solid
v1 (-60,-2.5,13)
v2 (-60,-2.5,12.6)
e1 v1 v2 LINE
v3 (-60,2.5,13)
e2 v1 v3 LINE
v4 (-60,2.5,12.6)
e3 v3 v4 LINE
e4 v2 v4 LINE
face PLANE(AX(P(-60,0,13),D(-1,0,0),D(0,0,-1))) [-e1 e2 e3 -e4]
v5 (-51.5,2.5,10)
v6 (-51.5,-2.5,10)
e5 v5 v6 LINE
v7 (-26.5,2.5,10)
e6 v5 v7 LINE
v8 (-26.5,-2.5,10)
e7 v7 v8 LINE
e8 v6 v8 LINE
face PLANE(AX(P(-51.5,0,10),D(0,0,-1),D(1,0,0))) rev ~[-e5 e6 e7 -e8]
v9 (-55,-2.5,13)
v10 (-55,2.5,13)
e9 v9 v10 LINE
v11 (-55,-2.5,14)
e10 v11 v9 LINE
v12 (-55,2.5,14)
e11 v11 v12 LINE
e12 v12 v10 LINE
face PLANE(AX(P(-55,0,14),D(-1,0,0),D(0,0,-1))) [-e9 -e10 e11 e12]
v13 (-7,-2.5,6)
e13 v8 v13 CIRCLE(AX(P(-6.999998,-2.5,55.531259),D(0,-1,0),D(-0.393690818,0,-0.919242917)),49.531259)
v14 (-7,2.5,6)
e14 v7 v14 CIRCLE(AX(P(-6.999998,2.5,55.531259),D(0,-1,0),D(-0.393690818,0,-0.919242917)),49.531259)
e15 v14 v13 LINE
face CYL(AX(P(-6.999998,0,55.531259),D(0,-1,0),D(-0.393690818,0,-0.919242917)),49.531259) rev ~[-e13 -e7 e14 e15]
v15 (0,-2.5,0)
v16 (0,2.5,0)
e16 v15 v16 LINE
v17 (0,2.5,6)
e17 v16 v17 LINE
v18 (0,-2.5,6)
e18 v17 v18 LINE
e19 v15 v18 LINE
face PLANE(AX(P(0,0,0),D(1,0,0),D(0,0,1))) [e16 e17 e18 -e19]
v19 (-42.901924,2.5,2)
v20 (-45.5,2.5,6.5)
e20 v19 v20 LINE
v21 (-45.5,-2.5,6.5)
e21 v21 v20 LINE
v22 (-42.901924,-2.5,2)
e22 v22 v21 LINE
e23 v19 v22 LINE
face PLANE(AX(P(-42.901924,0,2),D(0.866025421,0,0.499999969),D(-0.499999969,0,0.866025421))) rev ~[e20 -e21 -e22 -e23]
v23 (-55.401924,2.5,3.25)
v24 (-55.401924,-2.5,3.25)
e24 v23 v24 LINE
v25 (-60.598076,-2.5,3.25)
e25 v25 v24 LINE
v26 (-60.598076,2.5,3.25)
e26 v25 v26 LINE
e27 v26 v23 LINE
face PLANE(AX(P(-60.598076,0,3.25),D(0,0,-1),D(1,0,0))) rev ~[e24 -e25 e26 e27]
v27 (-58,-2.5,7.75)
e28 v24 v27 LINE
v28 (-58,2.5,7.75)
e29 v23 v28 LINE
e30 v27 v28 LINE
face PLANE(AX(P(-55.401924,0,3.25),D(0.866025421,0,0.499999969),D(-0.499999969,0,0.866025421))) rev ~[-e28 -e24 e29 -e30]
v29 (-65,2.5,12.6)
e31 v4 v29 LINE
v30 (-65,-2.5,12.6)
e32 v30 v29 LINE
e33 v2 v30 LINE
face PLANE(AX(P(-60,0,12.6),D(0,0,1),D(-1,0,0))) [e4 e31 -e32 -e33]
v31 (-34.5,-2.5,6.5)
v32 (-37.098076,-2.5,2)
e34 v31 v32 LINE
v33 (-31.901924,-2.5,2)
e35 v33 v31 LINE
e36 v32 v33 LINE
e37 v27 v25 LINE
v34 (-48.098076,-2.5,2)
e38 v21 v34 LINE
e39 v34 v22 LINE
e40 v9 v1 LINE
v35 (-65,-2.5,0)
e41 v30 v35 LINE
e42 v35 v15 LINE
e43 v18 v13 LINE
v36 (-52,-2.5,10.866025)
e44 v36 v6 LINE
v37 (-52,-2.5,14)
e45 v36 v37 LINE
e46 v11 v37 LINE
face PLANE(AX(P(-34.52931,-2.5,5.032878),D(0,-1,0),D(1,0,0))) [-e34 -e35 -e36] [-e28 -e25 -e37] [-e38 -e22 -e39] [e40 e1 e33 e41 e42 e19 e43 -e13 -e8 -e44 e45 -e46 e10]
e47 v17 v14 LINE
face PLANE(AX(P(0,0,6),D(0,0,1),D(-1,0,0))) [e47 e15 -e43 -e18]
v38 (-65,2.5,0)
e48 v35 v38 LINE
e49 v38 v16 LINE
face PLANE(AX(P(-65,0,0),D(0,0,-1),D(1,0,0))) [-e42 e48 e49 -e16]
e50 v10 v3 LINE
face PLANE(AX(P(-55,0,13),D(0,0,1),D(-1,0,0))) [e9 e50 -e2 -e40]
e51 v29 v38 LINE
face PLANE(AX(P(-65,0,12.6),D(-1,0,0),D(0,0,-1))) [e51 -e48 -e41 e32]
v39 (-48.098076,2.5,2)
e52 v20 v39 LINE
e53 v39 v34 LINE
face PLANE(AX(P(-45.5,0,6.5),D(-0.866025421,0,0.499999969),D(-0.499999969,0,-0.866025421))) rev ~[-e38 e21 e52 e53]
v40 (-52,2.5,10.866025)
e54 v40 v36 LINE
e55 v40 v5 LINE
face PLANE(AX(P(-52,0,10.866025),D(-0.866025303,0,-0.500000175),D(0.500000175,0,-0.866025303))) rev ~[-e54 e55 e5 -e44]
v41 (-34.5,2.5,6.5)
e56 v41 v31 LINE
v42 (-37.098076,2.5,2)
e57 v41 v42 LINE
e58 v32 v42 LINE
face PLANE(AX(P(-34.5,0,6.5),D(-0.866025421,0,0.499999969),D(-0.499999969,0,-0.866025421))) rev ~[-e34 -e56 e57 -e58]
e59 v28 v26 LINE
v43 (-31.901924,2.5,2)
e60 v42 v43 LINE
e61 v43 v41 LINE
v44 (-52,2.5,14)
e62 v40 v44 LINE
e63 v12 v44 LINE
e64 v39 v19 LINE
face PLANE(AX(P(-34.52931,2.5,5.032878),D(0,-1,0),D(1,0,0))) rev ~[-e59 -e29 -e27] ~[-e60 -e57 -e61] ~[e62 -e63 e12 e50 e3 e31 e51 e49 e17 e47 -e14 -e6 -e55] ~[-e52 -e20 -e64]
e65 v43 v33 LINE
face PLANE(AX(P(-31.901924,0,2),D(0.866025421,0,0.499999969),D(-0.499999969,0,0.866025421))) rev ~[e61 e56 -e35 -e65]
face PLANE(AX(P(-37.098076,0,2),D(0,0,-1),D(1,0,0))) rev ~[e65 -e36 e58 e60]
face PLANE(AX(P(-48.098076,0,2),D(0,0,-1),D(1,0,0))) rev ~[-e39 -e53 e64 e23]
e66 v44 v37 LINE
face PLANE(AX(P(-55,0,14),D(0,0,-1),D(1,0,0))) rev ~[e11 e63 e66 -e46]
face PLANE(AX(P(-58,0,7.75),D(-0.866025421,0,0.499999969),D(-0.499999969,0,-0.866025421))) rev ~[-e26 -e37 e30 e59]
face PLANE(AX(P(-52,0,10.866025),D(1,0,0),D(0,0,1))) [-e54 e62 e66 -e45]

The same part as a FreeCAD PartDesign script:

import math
import FreeCAD as App
import Part
import Sketcher

V = App.Vector
Q = App.Units.Quantity

doc = App.newDocument("Part")
body = doc.addObject("PartDesign::Body", "Body")

sketch1 = body.newObject("Sketcher::SketchObject", "Sketch")
sketch1.AttachmentSupport = (doc.getObject("XZ_Plane"), [""])
sketch1.MapMode = "FlatFace"
sketch1.addGeometry([
    Part.LineSegment(V(0, 0, 0), V(0, 6, 0)),
    Part.LineSegment(V(0, 6, 0), V(-7, 6, 0)),
    Part.ArcOfCircle(Part.Circle(V(-6.999998, 55.531259, 0), V(0, 0, 1), 49.531259), math.radians(-113.184349), math.radians(-90.000002)),
    Part.LineSegment(V(-26.5, 10, 0), V(-51.5, 10, 0)),
    Part.LineSegment(V(-51.5, 10, 0), V(-52, 10.866025, 0)),
    Part.LineSegment(V(-52, 10.866025, 0), V(-52, 14, 0)),
    Part.LineSegment(V(-52, 14, 0), V(-55, 14, 0)),
    Part.LineSegment(V(-55, 14, 0), V(-55, 13, 0)),
    Part.LineSegment(V(-55, 13, 0), V(-60, 13, 0)),
    Part.LineSegment(V(-60, 13, 0), V(-60, 12.6, 0)),
    Part.LineSegment(V(-60, 12.6, 0), V(-65, 12.6, 0)),
    Part.LineSegment(V(-65, 12.6, 0), V(-65, 0, 0)),
    Part.LineSegment(V(-65, 0, 0), V(0, 0, 0)),
    Part.LineSegment(V(-45.5, 6.5, 0), V(-42.901924, 2, 0)),
    Part.LineSegment(V(-42.901924, 2, 0), V(-48.098076, 2, 0)),
    Part.LineSegment(V(-48.098076, 2, 0), V(-45.5, 6.5, 0)),
    Part.LineSegment(V(-37.098076, 2, 0), V(-34.5, 6.5, 0)),
    Part.LineSegment(V(-34.5, 6.5, 0), V(-31.901924, 2, 0)),
    Part.LineSegment(V(-31.901924, 2, 0), V(-37.098076, 2, 0)),
    Part.LineSegment(V(-58, 7.75, 0), V(-55.401924, 3.25, 0)),
    Part.LineSegment(V(-55.401924, 3.25, 0), V(-60.598076, 3.25, 0)),
    Part.LineSegment(V(-60.598076, 3.25, 0), V(-58, 7.75, 0)),
], False)
sketch1.addConstraint([
    Sketcher.Constraint("Coincident", 0, 2, 1, 1),
    Sketcher.Constraint("Tangent", 1, 2, 2, 2),
    Sketcher.Constraint("Coincident", 2, 1, 3, 1),
    Sketcher.Constraint("Coincident", 3, 2, 4, 1),
    Sketcher.Constraint("Coincident", 4, 2, 5, 1),
    Sketcher.Constraint("Coincident", 5, 2, 6, 1),
    Sketcher.Constraint("Coincident", 6, 2, 7, 1),
    Sketcher.Constraint("Coincident", 7, 2, 8, 1),
    Sketcher.Constraint("Coincident", 8, 2, 9, 1),
    Sketcher.Constraint("Coincident", 9, 2, 10, 1),
    Sketcher.Constraint("Coincident", 10, 2, 11, 1),
    Sketcher.Constraint("Coincident", 11, 2, 12, 1),
    Sketcher.Constraint("Coincident", 12, 2, 0, 1),
    Sketcher.Constraint("Coincident", 13, 2, 14, 1),
    Sketcher.Constraint("Coincident", 14, 2, 15, 1),
    Sketcher.Constraint("Coincident", 15, 2, 13, 1),
    Sketcher.Constraint("Coincident", 16, 2, 17, 1),
    Sketcher.Constraint("Coincident", 17, 2, 18, 1),
    Sketcher.Constraint("Coincident", 18, 2, 16, 1),
    Sketcher.Constraint("Coincident", 19, 2, 20, 1),
    Sketcher.Constraint("Coincident", 20, 2, 21, 1),
    Sketcher.Constraint("Coincident", 21, 2, 19, 1),
    Sketcher.Constraint("Vertical", 0),
    Sketcher.Constraint("Horizontal", 1),
    Sketcher.Constraint("Horizontal", 3),
    Sketcher.Constraint("Vertical", 5),
    Sketcher.Constraint("Horizontal", 6),
    Sketcher.Constraint("Vertical", 7),
    Sketcher.Constraint("Horizontal", 8),
    Sketcher.Constraint("Vertical", 9),
    Sketcher.Constraint("Horizontal", 10),
    Sketcher.Constraint("Vertical", 11),
    Sketcher.Constraint("Horizontal", 12),
    Sketcher.Constraint("Horizontal", 14),
    Sketcher.Constraint("Horizontal", 18),
    Sketcher.Constraint("Horizontal", 20),
    Sketcher.Constraint("Coincident", 12, 2, -1, 1),
    Sketcher.Constraint("Parallel", 4, 13),
    Sketcher.Constraint("Parallel", 15, 16),
    Sketcher.Constraint("Parallel", 13, 17),
    Sketcher.Constraint("Parallel", 17, 19),
    Sketcher.Constraint("Parallel", 16, 21),
    Sketcher.Constraint("Horizontal", 15, 2, 16, 2),
    Sketcher.Constraint("Horizontal", 14, 2, 17, 2),
    Sketcher.Constraint("Equal", 8, 10),
    Sketcher.Constraint("Equal", 18, 20),
    Sketcher.Constraint("Equal", 13, 15),
    Sketcher.Constraint("DistanceX", 1, 2, 1, 1, Q("7 mm")),
    Sketcher.Constraint("DistanceX", 3, 2, 3, 1, Q("25 mm")),
    Sketcher.Constraint("DistanceX", 6, 2, 6, 1, Q("3 mm")),
    Sketcher.Constraint("DistanceX", 8, 2, 8, 1, Q("5 mm")),
    Sketcher.Constraint("DistanceX", 12, 1, 12, 2, Q("65 mm")),
    Sketcher.Constraint("DistanceY", 0, 1, 0, 2, Q("6 mm")),
    Sketcher.Constraint("DistanceY", 7, 2, 7, 1, Q("1 mm")),
    Sketcher.Constraint("Angle", 4, Q("120.000012 deg")),
    Sketcher.Constraint("Distance", 4, Q("1 mm")),
    Sketcher.Constraint("DistanceY", 9, 2, 9, 1, Q("0.4 mm")),
    Sketcher.Constraint("DistanceY", 11, 2, 11, 1, Q("12.6 mm")),
    Sketcher.Constraint("DistanceY", -1, 1, 2, 1, Q("10 mm")),
    Sketcher.Constraint("DistanceY", -1, 1, 13, 2, Q("2 mm")),
    Sketcher.Constraint("DistanceX", 21, 2, -1, 1, Q("58 mm")),
    Sketcher.Constraint("DistanceX", 3, 2, 15, 2, Q("6 mm")),
    Sketcher.Constraint("DistanceX", 16, 2, 2, 1, Q("8 mm")),
    Sketcher.Constraint("DistanceY", -1, 1, 15, 2, Q("6.5 mm")),
    Sketcher.Constraint("DistanceY", -1, 1, 19, 2, Q("3.25 mm")),
])
pad1 = body.newObject("PartDesign::Pad", "Pad")
pad1.Profile = sketch1
pad1.Length = 5
pad1.Midplane = True

doc.recompute()
